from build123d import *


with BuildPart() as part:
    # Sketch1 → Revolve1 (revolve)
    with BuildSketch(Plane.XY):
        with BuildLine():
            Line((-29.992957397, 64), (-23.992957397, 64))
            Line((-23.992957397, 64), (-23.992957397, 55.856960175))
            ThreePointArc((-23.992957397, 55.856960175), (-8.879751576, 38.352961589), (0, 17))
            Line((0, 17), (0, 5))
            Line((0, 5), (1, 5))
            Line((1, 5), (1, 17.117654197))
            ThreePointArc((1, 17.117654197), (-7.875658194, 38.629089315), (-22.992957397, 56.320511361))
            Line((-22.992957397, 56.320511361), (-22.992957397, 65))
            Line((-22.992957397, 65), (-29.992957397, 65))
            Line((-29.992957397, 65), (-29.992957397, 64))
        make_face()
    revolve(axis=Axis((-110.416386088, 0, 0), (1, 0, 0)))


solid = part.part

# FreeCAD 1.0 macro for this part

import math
import FreeCAD as App
import Part
import Sketcher
Q = App.Units.Quantity

doc = App.newDocument("Part")
body = doc.addObject("PartDesign::Body", "Body")

sketch1 = doc.addObject("Sketcher::SketchObject", "Sketch")
body.addObject(sketch1)
sketch1.AttachmentSupport = (doc.XY_Plane, [""])
sketch1.MapMode = "FlatFace"
sketch1.addGeometry(Part.LineSegment(App.Vector(-29.992957, 64, 0), App.Vector(-23.992957, 64, 0)), False)
sketch1.addGeometry(Part.LineSegment(App.Vector(-23.992957, 64, 0), App.Vector(-23.992957, 55.85696, 0)), False)
sketch1.addGeometry(Part.ArcOfCircle(Part.Circle(App.Vector(-70.992957, 0, 0), App.Vector(0, 0, 1), 73), math.radians(13.466495), math.radians(49.92157)), False)
sketch1.addGeometry(Part.LineSegment(App.Vector(0, 17, 0), App.Vector(0, 5, 0)), False)
sketch1.addGeometry(Part.LineSegment(App.Vector(0, 5, 0), App.Vector(1, 5, 0)), False)
sketch1.addGeometry(Part.LineSegment(App.Vector(1, 5, 0), App.Vector(1, 17.117654, 0)), False)
sketch1.addGeometry(Part.ArcOfCircle(Part.Circle(App.Vector(-70.992957, 0, 0), App.Vector(0, 0, 1), 74), math.radians(13.374778), math.radians(49.560207)), False)
sketch1.addGeometry(Part.LineSegment(App.Vector(-22.992957, 56.320511, 0), App.Vector(-22.992957, 65, 0)), False)
sketch1.addGeometry(Part.LineSegment(App.Vector(-22.992957, 65, 0), App.Vector(-29.992957, 65, 0)), False)
sketch1.addGeometry(Part.LineSegment(App.Vector(-29.992957, 65, 0), App.Vector(-29.992957, 64, 0)), False)
sketch1.addConstraint(Sketcher.Constraint("Coincident", 0, 2, 1, 1))
sketch1.addConstraint(Sketcher.Constraint("Coincident", 1, 2, 2, 2))
sketch1.addConstraint(Sketcher.Constraint("Coincident", 2, 1, 3, 1))
sketch1.addConstraint(Sketcher.Constraint("Coincident", 3, 2, 4, 1))
sketch1.addConstraint(Sketcher.Constraint("Coincident", 4, 2, 5, 1))
sketch1.addConstraint(Sketcher.Constraint("Coincident", 5, 2, 6, 1))
sketch1.addConstraint(Sketcher.Constraint("Coincident", 6, 2, 7, 1))
sketch1.addConstraint(Sketcher.Constraint("Coincident", 7, 2, 8, 1))
sketch1.addConstraint(Sketcher.Constraint("Coincident", 8, 2, 9, 1))
sketch1.addConstraint(Sketcher.Constraint("Coincident", 9, 2, 0, 1))
sketch1.addConstraint(Sketcher.Constraint("Horizontal", 0))
sketch1.addConstraint(Sketcher.Constraint("Vertical", 1))
sketch1.addConstraint(Sketcher.Constraint("Vertical", 3))
sketch1.addConstraint(Sketcher.Constraint("Horizontal", 4))
sketch1.addConstraint(Sketcher.Constraint("Vertical", 5))
sketch1.addConstraint(Sketcher.Constraint("Vertical", 7))
sketch1.addConstraint(Sketcher.Constraint("Horizontal", 8))
sketch1.addConstraint(Sketcher.Constraint("Vertical", 9))
sketch1.addConstraint(Sketcher.Constraint("Coincident", 6, 3, 2, 3))
sketch1.addConstraint(Sketcher.Constraint("PointOnObject", 2, 3, -1))
sketch1.addConstraint(Sketcher.Constraint("PointOnObject", 2, 1, -2))
sketch1.addConstraint(Sketcher.Constraint("Equal", 4, 9))
sketch1.addConstraint(Sketcher.Constraint("Radius", 2, Q("73 mm")))
sketch1.addConstraint(Sketcher.Constraint("Radius", 6, Q("74 mm")))
sketch1.addConstraint(Sketcher.Constraint("DistanceX", 0, 1, 0, 2, Q("6 mm")))
sketch1.addConstraint(Sketcher.Constraint("DistanceX", 4, 1, 4, 2, Q("1 mm")))
sketch1.addConstraint(Sketcher.Constraint("DistanceX", 8, 2, 8, 1, Q("7 mm")))
sketch1.addConstraint(Sketcher.Constraint("DistanceY", 3, 2, 3, 1, Q("12 mm")))
sketch1.addConstraint(Sketcher.Constraint("DistanceY", -1, 1, 0, 2, Q("64 mm")))
sketch1.addConstraint(Sketcher.Constraint("DistanceY", -1, 1, 2, 1, Q("17 mm")))
sketch1.addConstraint(Sketcher.Constraint("DistanceX", 2, 3, 0, 2, Q("47 mm")))
revolution = doc.addObject("PartDesign::Revolution", "Revolution")
body.addObject(revolution)
revolution.Profile = sketch1
revolution.ReferenceAxis = (sketch1, ["H_Axis"])
revolution.Angle = 360

doc.recompute()
